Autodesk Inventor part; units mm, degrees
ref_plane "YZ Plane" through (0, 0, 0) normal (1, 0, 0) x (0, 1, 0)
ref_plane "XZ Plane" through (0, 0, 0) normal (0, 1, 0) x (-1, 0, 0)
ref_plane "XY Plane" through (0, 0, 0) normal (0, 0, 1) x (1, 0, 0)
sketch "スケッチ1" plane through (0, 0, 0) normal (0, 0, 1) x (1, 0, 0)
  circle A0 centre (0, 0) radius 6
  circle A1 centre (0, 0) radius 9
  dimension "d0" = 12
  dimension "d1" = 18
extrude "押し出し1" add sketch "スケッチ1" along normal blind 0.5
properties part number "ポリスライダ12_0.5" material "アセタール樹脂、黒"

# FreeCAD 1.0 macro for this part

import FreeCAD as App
import Part
import Sketcher
from FreeCAD import Vector

doc = App.newDocument("Part")
body = doc.addObject("PartDesign::Body", "Body")

sketch1 = body.newObject("Sketcher::SketchObject", "Sketch")
sketch1.AttachmentSupport = (doc.getObject("XY_Plane"), [""])
sketch1.MapMode = "FlatFace"
sketch1.addGeometry(Part.Circle(Vector(0, 0, 0), Vector(0, 0, 1), 9), False)
sketch1.addGeometry(Part.Circle(Vector(0, 0, 0), Vector(0, 0, 1), 6), False)
sketch1.addConstraint(Sketcher.Constraint("Coincident", 0, 3, -1, 1))
sketch1.addConstraint(Sketcher.Constraint("Coincident", 1, 3, -1, 1))
sketch1.addConstraint(Sketcher.Constraint("Diameter", 0, 18.0))
sketch1.addConstraint(Sketcher.Constraint("Diameter", 1, 12.0))
pad1 = body.newObject("PartDesign::Pad", "Pad")
pad1.Profile = sketch1
pad1.Length = 0.5

doc.recompute()
